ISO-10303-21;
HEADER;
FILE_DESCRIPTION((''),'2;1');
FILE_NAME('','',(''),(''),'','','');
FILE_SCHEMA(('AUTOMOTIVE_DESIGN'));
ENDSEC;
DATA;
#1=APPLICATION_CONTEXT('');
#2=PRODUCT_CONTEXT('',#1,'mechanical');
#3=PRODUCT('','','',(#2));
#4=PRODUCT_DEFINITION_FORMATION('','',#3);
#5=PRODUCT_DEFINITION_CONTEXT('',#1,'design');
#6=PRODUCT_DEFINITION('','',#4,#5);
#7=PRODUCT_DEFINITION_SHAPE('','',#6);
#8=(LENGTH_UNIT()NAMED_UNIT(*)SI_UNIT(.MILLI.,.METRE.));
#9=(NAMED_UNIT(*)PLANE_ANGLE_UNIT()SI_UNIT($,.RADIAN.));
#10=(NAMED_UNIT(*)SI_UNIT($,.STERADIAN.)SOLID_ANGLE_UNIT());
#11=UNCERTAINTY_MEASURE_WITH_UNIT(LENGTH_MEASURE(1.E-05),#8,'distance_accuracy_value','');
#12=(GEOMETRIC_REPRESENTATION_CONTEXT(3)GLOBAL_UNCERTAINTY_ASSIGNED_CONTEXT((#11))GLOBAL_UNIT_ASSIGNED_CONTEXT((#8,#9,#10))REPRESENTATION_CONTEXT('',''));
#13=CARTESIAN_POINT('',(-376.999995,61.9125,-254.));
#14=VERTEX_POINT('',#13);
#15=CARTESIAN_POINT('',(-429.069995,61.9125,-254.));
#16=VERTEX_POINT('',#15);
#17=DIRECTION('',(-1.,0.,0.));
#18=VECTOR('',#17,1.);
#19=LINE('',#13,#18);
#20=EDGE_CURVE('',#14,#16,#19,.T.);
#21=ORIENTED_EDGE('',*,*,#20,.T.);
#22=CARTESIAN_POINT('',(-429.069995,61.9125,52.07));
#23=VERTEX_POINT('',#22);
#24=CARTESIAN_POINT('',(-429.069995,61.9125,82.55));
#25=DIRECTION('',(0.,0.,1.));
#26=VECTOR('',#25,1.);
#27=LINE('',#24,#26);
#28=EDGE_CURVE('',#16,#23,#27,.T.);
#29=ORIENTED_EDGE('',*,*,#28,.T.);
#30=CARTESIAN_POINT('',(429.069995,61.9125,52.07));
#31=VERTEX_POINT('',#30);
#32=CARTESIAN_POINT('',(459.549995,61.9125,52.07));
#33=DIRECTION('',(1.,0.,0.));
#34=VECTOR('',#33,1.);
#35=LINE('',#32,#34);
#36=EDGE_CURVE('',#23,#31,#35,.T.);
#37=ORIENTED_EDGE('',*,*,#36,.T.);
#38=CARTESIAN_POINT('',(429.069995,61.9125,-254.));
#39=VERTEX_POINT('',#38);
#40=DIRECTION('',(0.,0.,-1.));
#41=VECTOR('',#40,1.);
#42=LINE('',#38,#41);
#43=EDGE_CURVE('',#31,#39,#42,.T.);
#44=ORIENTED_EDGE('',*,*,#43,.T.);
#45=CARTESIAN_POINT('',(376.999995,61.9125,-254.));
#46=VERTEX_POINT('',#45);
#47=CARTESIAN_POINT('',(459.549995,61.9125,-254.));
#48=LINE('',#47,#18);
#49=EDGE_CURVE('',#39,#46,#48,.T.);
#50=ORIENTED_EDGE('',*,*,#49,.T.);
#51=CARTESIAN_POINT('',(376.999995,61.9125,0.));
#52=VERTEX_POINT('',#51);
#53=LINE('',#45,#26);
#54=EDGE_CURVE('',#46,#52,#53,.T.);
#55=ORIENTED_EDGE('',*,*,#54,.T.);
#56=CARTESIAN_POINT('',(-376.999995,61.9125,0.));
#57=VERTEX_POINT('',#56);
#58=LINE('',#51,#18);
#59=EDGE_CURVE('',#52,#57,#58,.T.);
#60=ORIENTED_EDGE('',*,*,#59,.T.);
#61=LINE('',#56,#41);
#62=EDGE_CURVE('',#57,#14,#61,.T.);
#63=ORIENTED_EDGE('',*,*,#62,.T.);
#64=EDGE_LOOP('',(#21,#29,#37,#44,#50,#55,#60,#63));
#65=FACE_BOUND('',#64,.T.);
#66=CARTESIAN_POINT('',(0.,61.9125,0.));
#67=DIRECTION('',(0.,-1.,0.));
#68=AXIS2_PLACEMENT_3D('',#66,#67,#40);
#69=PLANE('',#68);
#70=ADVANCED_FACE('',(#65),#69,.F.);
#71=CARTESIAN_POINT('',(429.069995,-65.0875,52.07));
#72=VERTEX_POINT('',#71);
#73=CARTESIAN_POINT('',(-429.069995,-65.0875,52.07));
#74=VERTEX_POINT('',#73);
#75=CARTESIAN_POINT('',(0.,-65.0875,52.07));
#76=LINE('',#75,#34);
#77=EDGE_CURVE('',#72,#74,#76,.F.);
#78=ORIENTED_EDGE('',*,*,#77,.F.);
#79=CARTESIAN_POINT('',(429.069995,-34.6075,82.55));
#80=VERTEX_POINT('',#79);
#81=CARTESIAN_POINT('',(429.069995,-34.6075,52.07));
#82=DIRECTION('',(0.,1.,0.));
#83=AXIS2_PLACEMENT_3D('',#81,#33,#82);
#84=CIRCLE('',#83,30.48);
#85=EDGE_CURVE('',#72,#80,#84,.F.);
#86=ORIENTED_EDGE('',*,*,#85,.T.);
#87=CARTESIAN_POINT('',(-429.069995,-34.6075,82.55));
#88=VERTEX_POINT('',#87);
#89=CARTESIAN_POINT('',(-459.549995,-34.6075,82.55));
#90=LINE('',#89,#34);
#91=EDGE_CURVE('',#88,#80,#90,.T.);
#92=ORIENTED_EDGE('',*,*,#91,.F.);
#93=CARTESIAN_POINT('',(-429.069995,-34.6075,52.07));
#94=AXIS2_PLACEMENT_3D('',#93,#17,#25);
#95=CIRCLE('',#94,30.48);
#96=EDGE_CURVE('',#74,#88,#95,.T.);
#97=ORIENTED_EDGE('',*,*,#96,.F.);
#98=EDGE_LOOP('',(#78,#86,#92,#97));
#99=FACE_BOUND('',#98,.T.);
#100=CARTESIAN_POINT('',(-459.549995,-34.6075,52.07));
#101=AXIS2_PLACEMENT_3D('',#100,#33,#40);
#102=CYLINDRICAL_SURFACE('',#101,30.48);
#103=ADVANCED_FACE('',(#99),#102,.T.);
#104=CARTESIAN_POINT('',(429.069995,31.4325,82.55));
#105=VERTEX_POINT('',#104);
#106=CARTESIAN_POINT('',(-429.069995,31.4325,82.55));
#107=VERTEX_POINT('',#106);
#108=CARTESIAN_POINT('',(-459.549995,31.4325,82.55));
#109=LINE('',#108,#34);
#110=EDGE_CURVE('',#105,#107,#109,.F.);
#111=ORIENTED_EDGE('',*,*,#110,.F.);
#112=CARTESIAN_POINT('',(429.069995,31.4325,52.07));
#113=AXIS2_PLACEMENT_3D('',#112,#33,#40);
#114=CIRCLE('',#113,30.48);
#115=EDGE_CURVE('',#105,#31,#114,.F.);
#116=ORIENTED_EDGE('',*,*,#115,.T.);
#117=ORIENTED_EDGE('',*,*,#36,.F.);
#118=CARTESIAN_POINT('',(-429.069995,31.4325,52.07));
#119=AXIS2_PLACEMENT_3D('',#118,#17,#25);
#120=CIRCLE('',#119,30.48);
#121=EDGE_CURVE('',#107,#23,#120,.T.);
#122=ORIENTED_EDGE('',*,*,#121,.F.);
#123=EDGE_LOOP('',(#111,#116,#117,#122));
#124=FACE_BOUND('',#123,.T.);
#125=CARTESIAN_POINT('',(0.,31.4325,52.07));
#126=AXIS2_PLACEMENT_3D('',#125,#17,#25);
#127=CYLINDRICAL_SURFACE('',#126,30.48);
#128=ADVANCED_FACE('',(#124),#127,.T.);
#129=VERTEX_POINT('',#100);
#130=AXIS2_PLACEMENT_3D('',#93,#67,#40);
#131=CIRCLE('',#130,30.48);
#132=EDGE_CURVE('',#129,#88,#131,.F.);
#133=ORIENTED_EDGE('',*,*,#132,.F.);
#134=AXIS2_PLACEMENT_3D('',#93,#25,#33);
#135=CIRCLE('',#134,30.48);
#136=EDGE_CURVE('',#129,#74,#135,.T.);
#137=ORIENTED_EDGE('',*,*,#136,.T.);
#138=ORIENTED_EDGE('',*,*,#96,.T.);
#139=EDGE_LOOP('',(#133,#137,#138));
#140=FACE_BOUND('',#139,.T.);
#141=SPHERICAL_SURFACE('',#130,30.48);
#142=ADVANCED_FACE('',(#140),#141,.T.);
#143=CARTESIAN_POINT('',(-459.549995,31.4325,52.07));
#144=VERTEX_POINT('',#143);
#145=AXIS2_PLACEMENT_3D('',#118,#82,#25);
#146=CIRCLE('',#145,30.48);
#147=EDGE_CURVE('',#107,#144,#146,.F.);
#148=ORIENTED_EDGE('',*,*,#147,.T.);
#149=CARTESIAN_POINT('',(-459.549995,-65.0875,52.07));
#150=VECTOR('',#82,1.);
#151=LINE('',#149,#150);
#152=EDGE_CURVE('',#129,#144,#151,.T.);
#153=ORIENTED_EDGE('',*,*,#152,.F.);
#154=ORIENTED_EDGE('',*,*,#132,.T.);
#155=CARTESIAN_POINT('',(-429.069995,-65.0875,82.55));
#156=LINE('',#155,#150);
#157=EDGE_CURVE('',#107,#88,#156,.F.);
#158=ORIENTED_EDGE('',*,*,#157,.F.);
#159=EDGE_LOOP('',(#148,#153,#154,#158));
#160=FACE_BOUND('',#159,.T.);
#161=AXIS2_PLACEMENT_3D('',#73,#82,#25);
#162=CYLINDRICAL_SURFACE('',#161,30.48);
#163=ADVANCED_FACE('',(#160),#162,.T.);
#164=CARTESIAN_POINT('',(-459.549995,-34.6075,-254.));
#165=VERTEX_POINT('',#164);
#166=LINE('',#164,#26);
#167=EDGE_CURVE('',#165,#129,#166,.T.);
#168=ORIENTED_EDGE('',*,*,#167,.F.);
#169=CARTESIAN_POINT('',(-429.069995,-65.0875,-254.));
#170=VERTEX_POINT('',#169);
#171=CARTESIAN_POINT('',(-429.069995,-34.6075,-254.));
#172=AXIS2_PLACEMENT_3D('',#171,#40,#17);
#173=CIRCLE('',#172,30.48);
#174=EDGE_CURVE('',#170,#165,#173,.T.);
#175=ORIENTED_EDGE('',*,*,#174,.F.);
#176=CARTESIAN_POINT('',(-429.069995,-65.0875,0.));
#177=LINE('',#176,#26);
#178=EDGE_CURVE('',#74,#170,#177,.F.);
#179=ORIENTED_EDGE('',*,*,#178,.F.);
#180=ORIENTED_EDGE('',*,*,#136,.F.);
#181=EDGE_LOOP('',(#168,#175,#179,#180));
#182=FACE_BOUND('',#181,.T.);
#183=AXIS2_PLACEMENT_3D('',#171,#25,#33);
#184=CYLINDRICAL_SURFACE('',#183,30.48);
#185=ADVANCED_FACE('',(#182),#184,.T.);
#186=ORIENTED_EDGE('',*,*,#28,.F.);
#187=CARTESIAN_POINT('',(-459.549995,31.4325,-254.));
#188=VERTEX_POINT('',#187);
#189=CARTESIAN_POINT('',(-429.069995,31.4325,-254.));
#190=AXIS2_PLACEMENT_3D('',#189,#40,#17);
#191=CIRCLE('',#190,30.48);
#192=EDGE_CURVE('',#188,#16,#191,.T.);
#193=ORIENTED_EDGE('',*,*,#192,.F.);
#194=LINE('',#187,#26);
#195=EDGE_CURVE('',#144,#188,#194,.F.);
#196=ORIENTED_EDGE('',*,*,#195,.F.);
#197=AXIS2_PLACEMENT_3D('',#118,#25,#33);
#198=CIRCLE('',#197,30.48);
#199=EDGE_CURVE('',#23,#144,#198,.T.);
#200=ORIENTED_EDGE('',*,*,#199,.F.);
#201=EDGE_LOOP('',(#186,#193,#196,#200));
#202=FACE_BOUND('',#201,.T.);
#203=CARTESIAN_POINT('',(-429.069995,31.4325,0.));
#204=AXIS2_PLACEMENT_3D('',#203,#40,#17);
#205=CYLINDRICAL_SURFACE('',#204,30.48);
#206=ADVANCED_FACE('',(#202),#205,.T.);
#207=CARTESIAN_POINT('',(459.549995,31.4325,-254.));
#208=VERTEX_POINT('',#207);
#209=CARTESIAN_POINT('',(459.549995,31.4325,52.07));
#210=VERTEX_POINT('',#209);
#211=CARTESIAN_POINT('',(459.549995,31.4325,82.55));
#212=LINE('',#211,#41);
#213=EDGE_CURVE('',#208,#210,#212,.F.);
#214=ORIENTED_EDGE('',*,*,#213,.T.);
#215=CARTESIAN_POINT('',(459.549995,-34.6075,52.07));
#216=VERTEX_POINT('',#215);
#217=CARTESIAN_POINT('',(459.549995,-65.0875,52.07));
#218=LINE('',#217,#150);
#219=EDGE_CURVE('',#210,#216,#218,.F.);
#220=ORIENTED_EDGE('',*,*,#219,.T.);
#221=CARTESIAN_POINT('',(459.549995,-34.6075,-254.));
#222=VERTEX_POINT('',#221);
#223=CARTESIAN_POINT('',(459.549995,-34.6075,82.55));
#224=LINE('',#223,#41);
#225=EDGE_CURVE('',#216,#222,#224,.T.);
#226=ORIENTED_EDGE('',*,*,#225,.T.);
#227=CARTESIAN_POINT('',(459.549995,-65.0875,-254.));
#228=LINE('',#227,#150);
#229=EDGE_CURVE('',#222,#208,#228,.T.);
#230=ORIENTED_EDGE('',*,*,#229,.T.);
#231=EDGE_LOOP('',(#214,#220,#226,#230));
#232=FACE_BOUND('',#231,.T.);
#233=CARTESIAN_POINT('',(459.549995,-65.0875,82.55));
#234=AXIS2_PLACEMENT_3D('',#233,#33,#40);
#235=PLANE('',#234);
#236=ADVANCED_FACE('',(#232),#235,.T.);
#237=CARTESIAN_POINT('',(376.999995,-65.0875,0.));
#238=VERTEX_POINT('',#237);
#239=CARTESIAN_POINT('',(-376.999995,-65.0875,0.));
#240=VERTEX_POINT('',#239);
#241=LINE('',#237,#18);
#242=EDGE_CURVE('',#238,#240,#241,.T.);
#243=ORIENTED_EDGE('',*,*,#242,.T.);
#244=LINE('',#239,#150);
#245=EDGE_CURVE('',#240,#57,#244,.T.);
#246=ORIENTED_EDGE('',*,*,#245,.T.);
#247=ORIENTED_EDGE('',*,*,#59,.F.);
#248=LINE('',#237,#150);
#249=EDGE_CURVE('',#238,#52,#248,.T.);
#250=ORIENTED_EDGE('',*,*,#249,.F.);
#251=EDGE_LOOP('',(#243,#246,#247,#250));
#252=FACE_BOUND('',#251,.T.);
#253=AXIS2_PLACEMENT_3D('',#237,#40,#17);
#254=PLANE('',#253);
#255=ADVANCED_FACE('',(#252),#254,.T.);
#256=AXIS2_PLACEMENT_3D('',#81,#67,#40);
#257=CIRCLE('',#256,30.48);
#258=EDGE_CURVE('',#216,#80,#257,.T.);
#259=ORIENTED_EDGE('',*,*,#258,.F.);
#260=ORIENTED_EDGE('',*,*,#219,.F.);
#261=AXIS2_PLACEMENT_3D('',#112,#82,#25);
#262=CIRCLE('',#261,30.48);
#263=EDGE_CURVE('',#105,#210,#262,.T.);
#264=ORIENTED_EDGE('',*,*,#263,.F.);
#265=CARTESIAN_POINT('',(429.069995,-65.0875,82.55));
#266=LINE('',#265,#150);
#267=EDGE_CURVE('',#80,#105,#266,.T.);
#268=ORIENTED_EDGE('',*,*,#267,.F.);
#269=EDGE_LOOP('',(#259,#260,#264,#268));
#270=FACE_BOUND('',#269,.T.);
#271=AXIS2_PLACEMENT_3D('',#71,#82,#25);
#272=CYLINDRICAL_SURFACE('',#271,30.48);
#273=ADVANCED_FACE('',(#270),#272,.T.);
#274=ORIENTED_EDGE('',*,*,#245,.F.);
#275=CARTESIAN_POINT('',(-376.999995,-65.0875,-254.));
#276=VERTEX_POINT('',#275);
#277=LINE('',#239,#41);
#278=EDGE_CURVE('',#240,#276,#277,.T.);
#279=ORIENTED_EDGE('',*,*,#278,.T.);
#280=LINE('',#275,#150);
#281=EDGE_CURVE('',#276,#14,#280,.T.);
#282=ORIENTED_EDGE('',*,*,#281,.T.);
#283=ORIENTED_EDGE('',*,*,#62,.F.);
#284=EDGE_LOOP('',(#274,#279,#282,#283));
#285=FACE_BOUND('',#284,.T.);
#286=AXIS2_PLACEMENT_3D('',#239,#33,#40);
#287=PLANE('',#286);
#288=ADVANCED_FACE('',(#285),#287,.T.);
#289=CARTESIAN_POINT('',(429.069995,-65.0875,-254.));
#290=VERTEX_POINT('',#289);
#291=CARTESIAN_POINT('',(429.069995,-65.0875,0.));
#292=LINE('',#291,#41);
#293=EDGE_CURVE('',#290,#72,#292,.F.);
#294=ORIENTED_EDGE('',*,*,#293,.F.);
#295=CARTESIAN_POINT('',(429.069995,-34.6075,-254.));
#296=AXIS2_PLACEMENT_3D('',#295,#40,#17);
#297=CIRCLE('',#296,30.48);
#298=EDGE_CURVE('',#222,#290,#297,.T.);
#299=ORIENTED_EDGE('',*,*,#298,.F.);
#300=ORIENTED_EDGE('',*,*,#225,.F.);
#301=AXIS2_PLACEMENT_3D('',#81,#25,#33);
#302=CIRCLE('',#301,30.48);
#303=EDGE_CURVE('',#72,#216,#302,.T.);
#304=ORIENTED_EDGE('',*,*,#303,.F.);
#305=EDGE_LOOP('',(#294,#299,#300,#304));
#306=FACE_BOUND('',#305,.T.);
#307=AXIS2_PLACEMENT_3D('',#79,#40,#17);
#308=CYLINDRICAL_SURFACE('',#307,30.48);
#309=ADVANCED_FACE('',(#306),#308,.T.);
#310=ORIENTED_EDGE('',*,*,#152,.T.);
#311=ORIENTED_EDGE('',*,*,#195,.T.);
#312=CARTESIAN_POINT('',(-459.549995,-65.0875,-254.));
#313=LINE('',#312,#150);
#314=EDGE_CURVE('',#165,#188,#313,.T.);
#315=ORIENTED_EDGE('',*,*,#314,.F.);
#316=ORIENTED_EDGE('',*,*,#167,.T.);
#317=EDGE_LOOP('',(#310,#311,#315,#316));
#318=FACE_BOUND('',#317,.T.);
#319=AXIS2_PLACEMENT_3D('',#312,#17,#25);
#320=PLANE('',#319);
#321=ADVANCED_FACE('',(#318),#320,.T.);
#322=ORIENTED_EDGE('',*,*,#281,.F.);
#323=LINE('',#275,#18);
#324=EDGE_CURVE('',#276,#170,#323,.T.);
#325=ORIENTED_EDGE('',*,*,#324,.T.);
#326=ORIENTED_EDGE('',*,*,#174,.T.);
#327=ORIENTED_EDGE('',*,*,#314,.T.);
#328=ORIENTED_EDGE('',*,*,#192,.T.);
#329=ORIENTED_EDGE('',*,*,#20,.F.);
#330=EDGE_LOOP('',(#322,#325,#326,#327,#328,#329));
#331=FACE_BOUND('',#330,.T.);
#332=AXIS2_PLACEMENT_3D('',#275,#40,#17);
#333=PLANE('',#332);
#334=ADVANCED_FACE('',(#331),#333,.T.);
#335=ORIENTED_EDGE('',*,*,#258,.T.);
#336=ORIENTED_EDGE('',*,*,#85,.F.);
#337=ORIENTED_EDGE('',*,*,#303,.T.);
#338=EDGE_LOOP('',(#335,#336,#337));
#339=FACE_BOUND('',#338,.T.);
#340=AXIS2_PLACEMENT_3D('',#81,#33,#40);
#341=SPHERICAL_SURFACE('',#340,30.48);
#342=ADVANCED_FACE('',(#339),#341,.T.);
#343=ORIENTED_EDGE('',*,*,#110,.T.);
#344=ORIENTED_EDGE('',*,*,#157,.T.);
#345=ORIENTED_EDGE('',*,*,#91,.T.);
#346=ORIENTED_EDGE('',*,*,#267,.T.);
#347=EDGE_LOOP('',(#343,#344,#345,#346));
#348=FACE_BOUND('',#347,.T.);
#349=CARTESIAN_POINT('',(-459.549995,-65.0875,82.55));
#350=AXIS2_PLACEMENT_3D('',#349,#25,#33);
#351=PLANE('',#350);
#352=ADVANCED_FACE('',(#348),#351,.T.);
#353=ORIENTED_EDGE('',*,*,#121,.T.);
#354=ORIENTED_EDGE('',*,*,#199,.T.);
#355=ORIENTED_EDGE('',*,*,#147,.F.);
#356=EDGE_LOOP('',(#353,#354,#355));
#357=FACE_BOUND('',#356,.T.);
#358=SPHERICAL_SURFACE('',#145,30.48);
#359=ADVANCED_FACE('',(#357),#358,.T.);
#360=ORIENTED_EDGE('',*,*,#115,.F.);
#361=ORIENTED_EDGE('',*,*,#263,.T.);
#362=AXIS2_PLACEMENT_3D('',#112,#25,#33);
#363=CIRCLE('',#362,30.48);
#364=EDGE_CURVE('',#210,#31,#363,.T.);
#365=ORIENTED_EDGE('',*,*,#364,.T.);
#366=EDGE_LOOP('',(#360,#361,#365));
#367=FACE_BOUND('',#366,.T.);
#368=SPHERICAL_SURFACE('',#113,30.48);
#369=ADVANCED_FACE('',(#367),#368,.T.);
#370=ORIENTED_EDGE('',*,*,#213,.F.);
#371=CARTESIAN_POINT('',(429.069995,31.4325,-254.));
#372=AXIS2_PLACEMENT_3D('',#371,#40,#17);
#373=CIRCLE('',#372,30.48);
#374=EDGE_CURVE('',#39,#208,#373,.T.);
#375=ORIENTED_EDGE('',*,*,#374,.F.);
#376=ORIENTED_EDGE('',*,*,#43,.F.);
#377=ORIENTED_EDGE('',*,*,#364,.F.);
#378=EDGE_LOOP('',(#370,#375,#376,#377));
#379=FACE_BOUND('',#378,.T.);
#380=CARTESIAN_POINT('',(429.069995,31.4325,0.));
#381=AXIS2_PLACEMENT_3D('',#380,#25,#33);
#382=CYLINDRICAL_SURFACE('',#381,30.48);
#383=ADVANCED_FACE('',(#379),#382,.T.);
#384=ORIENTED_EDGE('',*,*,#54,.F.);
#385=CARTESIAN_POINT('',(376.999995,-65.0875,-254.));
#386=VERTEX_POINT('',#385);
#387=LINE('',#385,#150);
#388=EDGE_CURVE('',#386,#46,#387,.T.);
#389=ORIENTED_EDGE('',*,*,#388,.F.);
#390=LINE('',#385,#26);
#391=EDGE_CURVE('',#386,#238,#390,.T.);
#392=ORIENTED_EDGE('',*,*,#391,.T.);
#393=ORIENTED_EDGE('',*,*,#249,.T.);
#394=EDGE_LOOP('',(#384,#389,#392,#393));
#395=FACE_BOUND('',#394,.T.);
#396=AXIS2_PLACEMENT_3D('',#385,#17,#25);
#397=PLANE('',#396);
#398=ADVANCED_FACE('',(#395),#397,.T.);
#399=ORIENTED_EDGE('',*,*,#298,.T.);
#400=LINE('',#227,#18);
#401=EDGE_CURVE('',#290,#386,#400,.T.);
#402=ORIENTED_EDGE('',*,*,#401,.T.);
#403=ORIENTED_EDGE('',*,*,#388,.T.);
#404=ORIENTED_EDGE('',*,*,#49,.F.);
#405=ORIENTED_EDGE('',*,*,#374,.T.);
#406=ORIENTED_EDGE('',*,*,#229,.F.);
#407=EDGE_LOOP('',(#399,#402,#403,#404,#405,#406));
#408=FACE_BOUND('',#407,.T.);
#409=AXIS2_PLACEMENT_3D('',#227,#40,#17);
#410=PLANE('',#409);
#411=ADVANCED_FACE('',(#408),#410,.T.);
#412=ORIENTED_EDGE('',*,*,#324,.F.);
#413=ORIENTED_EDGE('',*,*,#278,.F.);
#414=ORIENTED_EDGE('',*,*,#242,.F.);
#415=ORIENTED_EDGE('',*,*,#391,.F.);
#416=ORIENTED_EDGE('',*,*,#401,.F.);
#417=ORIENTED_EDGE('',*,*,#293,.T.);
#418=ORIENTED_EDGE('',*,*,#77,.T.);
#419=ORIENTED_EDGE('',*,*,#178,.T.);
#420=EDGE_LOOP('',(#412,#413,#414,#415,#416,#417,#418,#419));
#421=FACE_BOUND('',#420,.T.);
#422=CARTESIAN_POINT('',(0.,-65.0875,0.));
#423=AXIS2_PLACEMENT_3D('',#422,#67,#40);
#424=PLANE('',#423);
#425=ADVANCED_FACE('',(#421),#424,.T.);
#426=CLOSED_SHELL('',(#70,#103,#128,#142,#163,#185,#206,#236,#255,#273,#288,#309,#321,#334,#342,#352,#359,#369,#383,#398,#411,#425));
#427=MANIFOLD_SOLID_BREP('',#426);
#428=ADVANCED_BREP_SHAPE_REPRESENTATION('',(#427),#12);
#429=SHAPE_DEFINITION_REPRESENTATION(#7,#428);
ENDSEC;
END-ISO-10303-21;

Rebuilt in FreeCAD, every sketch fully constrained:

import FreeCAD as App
import Part
import Sketcher
from FreeCAD import Vector
Q = App.Units.Quantity


def edges_at(feature, points):
    """Names of the edges that pass closest to the given points."""
    edges = feature.Shape.Edges
    near = lambda p: min(range(len(edges)), key=lambda i: edges[i].distToShape(Part.Vertex(*p))[0])
    return sorted({f"Edge{near(p) + 1}" for p in points})

doc = App.newDocument("Part")
body = doc.addObject("PartDesign::Body", "Body")

sketch1 = body.newObject("Sketcher::SketchObject", "Sketch")
sketch1.AttachmentSupport = (doc.getObject("XZ_Plane"), [""])
sketch1.MapMode = "FlatFace"
sketch1.addGeometry([
    Part.LineSegment(Vector(376.999995, 0, 0), Vector(-376.999995, 0, 0)),
    Part.LineSegment(Vector(-376.999995, 0, 0), Vector(-376.999995, -254, 0)),
    Part.LineSegment(Vector(-376.999995, -254, 0), Vector(-459.549995, -254, 0)),
    Part.LineSegment(Vector(-459.549995, -254, 0), Vector(-459.549995, 82.55, 0)),
    Part.LineSegment(Vector(-459.549995, 82.55, 0), Vector(459.549995, 82.55, 0)),
    Part.LineSegment(Vector(459.549995, 82.55, 0), Vector(459.549995, -254, 0)),
    Part.LineSegment(Vector(459.549995, -254, 0), Vector(376.999995, -254, 0)),
    Part.LineSegment(Vector(376.999995, -254, 0), Vector(376.999995, 0, 0)),
], False)
sketch1.addConstraint([
    Sketcher.Constraint("Coincident", 0, 2, 1, 1),
    Sketcher.Constraint("Coincident", 1, 2, 2, 1),
    Sketcher.Constraint("Coincident", 2, 2, 3, 1),
    Sketcher.Constraint("Coincident", 3, 2, 4, 1),
    Sketcher.Constraint("Coincident", 4, 2, 5, 1),
    Sketcher.Constraint("Coincident", 5, 2, 6, 1),
    Sketcher.Constraint("Coincident", 6, 2, 7, 1),
    Sketcher.Constraint("Coincident", 7, 2, 0, 1),
    Sketcher.Constraint("Horizontal", 0),
    Sketcher.Constraint("Vertical", 1),
    Sketcher.Constraint("Horizontal", 2),
    Sketcher.Constraint("Vertical", 3),
    Sketcher.Constraint("Horizontal", 4),
    Sketcher.Constraint("Vertical", 5),
    Sketcher.Constraint("Horizontal", 6),
    Sketcher.Constraint("Vertical", 7),
    Sketcher.Constraint("Symmetric", 0, 2, 7, 2, -1, 1),
    Sketcher.Constraint("Symmetric", 2, 2, 5, 2, -2),
    Sketcher.Constraint("DistanceY", 1, 2, 1, 1, Q("10 in")),
    Sketcher.Constraint("DistanceX", 2, 2, 2, 1, Q("3.25 in")),
    Sketcher.Constraint("DistanceY", 3, 1, 3, 2, Q("13.25 in")),
    Sketcher.Constraint("DistanceX", 0, 2, 0, 1, 753.999991),
])
pad1 = body.newObject("PartDesign::Pad", "Pad")
pad1.Profile = sketch1
pad1.Type = "TwoLengths"
pad1.Length = Q("2.4375 in")
pad1.Length2 = Q("2.5625 in")
pad1.Reversed = True
doc.recompute()

fillet = body.newObject("PartDesign::Fillet", "Fillet")
fillet.Base = (pad1, edges_at(pad1, [
    (459.55, -1.587, 82.55),
    (-459.55, -1.587, 82.55),
    (-459.55, -65.088, -85.725),
    (-459.55, 61.913, -85.725),
    (0, -65.088, 82.55),
    (0, 61.913, 82.55),
    (459.55, 61.913, -85.725),
    (459.55, -65.088, -85.725),
]))
fillet.Radius = Q("1.2 in")

doc.recompute()
